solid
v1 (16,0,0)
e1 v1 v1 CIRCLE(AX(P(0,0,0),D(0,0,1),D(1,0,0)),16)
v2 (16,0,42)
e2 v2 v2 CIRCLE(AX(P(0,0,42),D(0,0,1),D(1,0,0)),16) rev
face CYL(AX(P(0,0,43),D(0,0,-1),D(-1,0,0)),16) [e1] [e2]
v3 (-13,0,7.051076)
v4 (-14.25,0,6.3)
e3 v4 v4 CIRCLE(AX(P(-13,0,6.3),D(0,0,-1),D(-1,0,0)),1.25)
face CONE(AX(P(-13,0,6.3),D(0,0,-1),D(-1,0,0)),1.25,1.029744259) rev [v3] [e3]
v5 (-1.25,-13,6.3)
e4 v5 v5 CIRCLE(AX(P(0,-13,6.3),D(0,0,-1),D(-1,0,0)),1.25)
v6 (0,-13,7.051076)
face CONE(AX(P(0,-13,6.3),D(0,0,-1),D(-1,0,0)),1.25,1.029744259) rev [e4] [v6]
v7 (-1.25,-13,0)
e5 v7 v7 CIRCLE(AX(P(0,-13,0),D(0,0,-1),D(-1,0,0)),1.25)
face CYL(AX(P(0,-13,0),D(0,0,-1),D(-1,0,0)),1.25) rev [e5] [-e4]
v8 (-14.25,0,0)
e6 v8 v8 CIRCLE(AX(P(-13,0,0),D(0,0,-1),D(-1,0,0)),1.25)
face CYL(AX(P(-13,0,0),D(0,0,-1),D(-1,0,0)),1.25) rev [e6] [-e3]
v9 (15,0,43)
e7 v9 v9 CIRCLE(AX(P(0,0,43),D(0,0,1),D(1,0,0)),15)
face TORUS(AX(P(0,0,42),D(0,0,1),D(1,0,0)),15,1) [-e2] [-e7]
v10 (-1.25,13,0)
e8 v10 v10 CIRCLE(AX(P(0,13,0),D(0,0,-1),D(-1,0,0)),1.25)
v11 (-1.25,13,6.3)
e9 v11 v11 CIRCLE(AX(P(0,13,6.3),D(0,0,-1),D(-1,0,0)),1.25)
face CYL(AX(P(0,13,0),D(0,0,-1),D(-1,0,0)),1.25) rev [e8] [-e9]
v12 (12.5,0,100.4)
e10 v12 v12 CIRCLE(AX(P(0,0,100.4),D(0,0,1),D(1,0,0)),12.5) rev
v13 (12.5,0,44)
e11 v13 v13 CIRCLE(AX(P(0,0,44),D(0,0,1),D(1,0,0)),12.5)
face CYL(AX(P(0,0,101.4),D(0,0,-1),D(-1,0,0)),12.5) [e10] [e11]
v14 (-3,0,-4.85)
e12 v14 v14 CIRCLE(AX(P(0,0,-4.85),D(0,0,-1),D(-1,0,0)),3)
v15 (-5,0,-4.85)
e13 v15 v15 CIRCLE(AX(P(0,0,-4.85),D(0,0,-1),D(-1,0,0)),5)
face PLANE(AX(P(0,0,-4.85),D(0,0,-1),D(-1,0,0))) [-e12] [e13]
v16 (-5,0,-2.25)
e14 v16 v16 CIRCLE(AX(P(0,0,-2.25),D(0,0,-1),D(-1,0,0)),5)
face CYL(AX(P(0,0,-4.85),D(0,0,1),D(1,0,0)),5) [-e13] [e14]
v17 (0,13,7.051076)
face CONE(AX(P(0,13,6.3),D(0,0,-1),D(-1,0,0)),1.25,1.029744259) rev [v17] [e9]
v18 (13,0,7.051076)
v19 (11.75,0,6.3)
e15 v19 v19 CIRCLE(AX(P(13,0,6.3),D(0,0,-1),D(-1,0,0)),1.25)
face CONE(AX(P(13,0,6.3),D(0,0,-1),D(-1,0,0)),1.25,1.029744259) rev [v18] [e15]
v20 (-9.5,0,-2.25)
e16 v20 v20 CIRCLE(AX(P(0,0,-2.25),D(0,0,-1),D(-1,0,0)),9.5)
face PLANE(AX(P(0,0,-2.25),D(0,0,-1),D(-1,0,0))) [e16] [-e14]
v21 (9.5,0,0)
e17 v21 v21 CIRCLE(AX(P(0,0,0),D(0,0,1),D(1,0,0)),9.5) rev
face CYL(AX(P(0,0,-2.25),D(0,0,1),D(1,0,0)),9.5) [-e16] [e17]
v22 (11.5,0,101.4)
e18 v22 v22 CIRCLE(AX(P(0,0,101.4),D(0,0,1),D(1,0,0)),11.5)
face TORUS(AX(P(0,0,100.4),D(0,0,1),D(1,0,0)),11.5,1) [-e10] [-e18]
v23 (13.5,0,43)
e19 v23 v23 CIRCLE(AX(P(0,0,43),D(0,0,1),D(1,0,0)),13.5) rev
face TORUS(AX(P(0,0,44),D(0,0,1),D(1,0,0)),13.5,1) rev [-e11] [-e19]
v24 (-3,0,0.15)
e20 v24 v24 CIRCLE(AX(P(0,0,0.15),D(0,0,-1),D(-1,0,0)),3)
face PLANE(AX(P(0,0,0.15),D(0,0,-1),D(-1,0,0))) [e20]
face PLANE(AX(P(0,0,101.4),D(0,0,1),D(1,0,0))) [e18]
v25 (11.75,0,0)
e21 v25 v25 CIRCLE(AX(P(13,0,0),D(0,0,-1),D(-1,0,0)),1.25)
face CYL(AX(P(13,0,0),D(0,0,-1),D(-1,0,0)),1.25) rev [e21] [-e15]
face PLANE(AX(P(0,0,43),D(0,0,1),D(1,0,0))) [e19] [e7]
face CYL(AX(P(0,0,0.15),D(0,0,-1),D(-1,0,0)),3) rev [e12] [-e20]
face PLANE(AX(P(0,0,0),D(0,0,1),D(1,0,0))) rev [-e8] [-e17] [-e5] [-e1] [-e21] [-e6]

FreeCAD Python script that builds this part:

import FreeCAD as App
import Part
import Sketcher
from FreeCAD import Vector


def edges_at(feature, points):
    """Names of the edges that pass closest to the given points."""
    edges = feature.Shape.Edges
    near = lambda p: min(range(len(edges)), key=lambda i: edges[i].distToShape(Part.Vertex(*p))[0])
    return sorted({f"Edge{near(p) + 1}" for p in points})

doc = App.newDocument("Part")
body = doc.addObject("PartDesign::Body", "Body")

# Sketch on XY plane
sketch1 = doc.addObject("Sketcher::SketchObject", "Sketch")
body.addObject(sketch1)
sketch1.AttachmentSupport = (doc.XY_Plane, [""])
sketch1.MapMode = "FlatFace"
sketch1.addGeometry(Part.Circle(Vector(0, 0, 0), Vector(0, 0, 1), 16), False)
sketch1.addConstraint([
    Sketcher.Constraint("Coincident", 0, 3, -1, 1),
    Sketcher.Constraint("Diameter", 0, 32.0),
])
pad1 = doc.addObject("PartDesign::Pad", "Pad")
body.addObject(pad1)
pad1.Profile = sketch1
pad1.Length = 43

# Sketch on XY plane
sketch2 = doc.addObject("Sketcher::SketchObject", "Sketch001")
body.addObject(sketch2)
sketch2.AttachmentSupport = (doc.XY_Plane, [""])
sketch2.MapMode = "FlatFace"
sketch2.AttachmentOffset = App.Placement(Vector(0, 0, 43), App.Rotation())
sketch2.addGeometry(Part.Circle(Vector(0, 0, 0), Vector(0, 0, 1), 12.5), False)
sketch2.addConstraint([
    Sketcher.Constraint("Coincident", 0, 3, -1, 1),
    Sketcher.Constraint("Diameter", 0, 25.0),
])
pad2 = doc.addObject("PartDesign::Pad", "Pad001")
body.addObject(pad2)
pad2.Profile = sketch2
pad2.Length = 58.4

# Sketch on XY plane
sketch3 = doc.addObject("Sketcher::SketchObject", "Sketch002")
body.addObject(sketch3)
sketch3.AttachmentSupport = (doc.XY_Plane, [""])
sketch3.MapMode = "FlatFace"
sketch3.addGeometry(Part.Circle(Vector(0, 0, 0), Vector(0, 0, 1), 9.5), False)
sketch3.addConstraint([
    Sketcher.Constraint("Coincident", 0, 3, -1, 1),
    Sketcher.Constraint("Diameter", 0, 19.0),
])
pad3 = doc.addObject("PartDesign::Pad", "Pad002")
body.addObject(pad3)
pad3.Profile = sketch3
pad3.Length = 2.25
pad3.Reversed = True

# Sketch on XY plane
sketch4 = doc.addObject("Sketcher::SketchObject", "Sketch003")
body.addObject(sketch4)
sketch4.AttachmentSupport = (doc.XY_Plane, [""])
sketch4.MapMode = "FlatFace"
sketch4.AttachmentOffset = App.Placement(Vector(0, 0, -2.25), App.Rotation())
sketch4.addGeometry(Part.Circle(Vector(0, 0, 0), Vector(0, 0, 1), 5), False)
sketch4.addConstraint([
    Sketcher.Constraint("Coincident", 0, 3, -1, 1),
    Sketcher.Constraint("Diameter", 0, 10.0),
])
pad4 = doc.addObject("PartDesign::Pad", "Pad003")
body.addObject(pad4)
pad4.Profile = sketch4
pad4.Length = 2.6
pad4.Reversed = True

# Sketch on XY plane
sketch5 = doc.addObject("Sketcher::SketchObject", "Sketch004")
body.addObject(sketch5)
sketch5.AttachmentSupport = (doc.XY_Plane, [""])
sketch5.MapMode = "FlatFace"
sketch5.AttachmentOffset = App.Placement(Vector(0, 0, -4.85), App.Rotation())
sketch5.addGeometry(Part.Circle(Vector(0, 0, 0), Vector(0, 0, 1), 3), False)
sketch5.addConstraint([
    Sketcher.Constraint("Coincident", 0, 3, -1, 1),
    Sketcher.Constraint("Diameter", 0, 6.0),
])
pocket1 = doc.addObject("PartDesign::Pocket", "Pocket")
body.addObject(pocket1)
pocket1.Profile = sketch5
pocket1.Length = 5
pocket1.Reversed = True
doc.recompute()

fillet = doc.addObject("PartDesign::Fillet", "Fillet")
body.addObject(fillet)
fillet.Base = (pocket1, edges_at(pocket1, [(-16, 0, 43), (-12.5, 0, 43), (-12.5, 0, 101.4)]))
fillet.Radius = 1

# Sketch on XY plane
sketch6 = doc.addObject("Sketcher::SketchObject", "Sketch005")
body.addObject(sketch6)
sketch6.AttachmentSupport = (doc.XY_Plane, [""])
sketch6.MapMode = "FlatFace"
sketch6.addGeometry([
    Part.Circle(Vector(0, 13, 0), Vector(0, 0, 1), 1.25),
    Part.Circle(Vector(13, 0, 0), Vector(0, 0, 1), 1.25),
    Part.Circle(Vector(0, -13, 0), Vector(0, 0, 1), 1.25),
    Part.Circle(Vector(-13, 0, 0), Vector(0, 0, 1), 1.25),
], False)
sketch6.addConstraint([
    Sketcher.Constraint("Equal", 0, 1),
    Sketcher.Constraint("Equal", 1, 2),
    Sketcher.Constraint("Equal", 2, 3),
    Sketcher.Constraint("Symmetric", 0, 3, 2, 3, -1, 1),
    Sketcher.Constraint("Symmetric", 1, 3, 3, 3, -1, 1),
    Sketcher.Constraint("PointOnObject", 0, 3, -2),
    Sketcher.Constraint("PointOnObject", 1, 3, -1),
    Sketcher.Constraint("Diameter", 0, 2.5),
    Sketcher.Constraint("DistanceY", -1, 1, 0, 3, 13.0),
    Sketcher.Constraint("DistanceX", -1, 1, 1, 3, 13.0),
])
doc.recompute()
hole = doc.addObject("PartDesign::Hole", "Hole")
body.addObject(hole)
hole.Profile = sketch6
hole.ThreadType = "None"
hole.Diameter = 2.5
hole.DepthType = "Dimension"
hole.Depth = 6.3
hole.DrillPoint = "Angled"
hole.DrillPointAngle = 118
hole.Reversed = True

doc.recompute()
